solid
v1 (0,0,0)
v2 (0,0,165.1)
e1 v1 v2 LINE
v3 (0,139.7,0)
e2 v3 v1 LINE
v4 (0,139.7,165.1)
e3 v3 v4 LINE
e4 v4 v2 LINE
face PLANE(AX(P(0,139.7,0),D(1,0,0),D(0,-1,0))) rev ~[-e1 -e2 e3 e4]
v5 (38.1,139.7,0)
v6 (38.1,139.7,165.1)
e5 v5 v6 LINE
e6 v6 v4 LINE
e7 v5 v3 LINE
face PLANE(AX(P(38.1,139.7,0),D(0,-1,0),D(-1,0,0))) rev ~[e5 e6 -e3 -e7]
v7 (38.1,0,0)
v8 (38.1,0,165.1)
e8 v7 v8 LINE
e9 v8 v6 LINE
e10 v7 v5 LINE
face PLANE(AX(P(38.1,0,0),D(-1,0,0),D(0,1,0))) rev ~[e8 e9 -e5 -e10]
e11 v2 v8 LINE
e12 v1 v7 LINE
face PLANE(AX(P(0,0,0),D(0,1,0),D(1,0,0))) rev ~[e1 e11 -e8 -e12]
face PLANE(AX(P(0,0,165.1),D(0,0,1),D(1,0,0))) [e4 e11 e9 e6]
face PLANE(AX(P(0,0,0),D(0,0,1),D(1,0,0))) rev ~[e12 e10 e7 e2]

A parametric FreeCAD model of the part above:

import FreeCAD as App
import Part
import Sketcher
from FreeCAD import Vector
Q = App.Units.Quantity


def add_polygon(sketch, points):
    """Adds a closed chain of lines whose ends are joined by coincident constraints."""
    first, n = sketch.GeometryCount, len(points)
    for a, b in zip(points, points[1:] + points[:1]):
        sketch.addGeometry(Part.LineSegment(App.Vector(*a, 0), App.Vector(*b, 0)), False)
    for i in range(n):
        sketch.addConstraint(Sketcher.Constraint("Coincident", first + i, 2, first + (i + 1) % n, 1))

doc = App.newDocument("Part")
body = doc.addObject("PartDesign::Body", "Body")

# Sketch on XY plane
sketch1 = body.newObject("Sketcher::SketchObject", "Sketch")
sketch1.AttachmentSupport = (doc.getObject("XY_Plane"), [""])
sketch1.MapMode = "FlatFace"
add_polygon(sketch1, [(0, 140), (0, 0), (38, 0), (38, 140)])  # lines 0-3
sketch1.addConstraint(Sketcher.Constraint("Vertical", 0))
sketch1.addConstraint(Sketcher.Constraint("Horizontal", 1))
sketch1.addConstraint(Sketcher.Constraint("Vertical", 2))
sketch1.addConstraint(Sketcher.Constraint("Horizontal", 3))
sketch1.addConstraint(Sketcher.Constraint("Coincident", 0, 2, -1, 1))
sketch1.addConstraint(Sketcher.Constraint("DistanceX", 1, 1, 1, 2, Q("1.5 in")))
sketch1.addConstraint(Sketcher.Constraint("DistanceY", 0, 2, 0, 1, Q("5.5 in")))
pad1 = body.newObject("PartDesign::Pad", "Pad")
pad1.Profile = sketch1
pad1.Length = Q("6.5 in")

doc.recompute()
